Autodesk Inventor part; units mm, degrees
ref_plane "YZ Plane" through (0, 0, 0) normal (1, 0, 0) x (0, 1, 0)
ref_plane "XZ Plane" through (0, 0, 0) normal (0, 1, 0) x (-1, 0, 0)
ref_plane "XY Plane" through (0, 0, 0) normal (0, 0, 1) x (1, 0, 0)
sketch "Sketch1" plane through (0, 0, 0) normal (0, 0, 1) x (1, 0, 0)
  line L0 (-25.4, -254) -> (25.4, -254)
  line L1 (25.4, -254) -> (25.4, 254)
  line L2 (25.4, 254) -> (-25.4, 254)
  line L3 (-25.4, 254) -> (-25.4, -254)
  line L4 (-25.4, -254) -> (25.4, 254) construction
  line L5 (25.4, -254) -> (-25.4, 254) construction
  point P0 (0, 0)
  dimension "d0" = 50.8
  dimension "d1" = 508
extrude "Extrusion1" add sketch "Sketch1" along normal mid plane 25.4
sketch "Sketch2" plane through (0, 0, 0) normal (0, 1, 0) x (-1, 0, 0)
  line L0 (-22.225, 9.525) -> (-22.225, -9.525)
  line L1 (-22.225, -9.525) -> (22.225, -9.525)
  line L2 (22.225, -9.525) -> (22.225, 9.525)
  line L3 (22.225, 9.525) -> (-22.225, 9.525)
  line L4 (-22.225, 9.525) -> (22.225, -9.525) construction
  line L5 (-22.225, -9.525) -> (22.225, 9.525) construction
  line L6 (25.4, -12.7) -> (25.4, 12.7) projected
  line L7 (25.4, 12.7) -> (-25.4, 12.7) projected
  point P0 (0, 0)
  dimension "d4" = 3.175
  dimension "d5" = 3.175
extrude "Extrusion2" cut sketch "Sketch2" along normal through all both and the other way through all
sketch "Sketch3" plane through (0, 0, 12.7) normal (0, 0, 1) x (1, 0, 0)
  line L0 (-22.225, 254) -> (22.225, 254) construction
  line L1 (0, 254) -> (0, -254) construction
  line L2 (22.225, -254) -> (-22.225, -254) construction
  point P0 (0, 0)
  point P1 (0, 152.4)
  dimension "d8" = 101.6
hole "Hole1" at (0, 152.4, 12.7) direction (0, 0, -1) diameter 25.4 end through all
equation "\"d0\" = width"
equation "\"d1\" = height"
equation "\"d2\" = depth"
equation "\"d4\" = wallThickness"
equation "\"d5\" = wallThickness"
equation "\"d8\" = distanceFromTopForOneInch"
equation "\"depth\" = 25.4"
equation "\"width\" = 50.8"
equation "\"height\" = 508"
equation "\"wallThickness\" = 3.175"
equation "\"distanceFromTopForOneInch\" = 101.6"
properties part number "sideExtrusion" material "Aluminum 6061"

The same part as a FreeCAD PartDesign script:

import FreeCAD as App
import Part
import Sketcher

V = App.Vector
Q = App.Units.Quantity


def add_polygon(sketch, points):
    """Adds a closed chain of lines whose ends are joined by coincident constraints."""
    first, n = sketch.GeometryCount, len(points)
    for a, b in zip(points, points[1:] + points[:1]):
        sketch.addGeometry(Part.LineSegment(App.Vector(*a, 0), App.Vector(*b, 0)), False)
    for i in range(n):
        sketch.addConstraint(Sketcher.Constraint("Coincident", first + i, 2, first + (i + 1) % n, 1))

doc = App.newDocument("Part")
body = doc.addObject("PartDesign::Body", "Body")

sketch1 = body.newObject("Sketcher::SketchObject", "Sketch")
sketch1.AttachmentSupport = (doc.getObject("XY_Plane"), [""])
sketch1.MapMode = "FlatFace"
add_polygon(sketch1, [(-25.4, 254), (-25.4, -254), (25.4, -254), (25.4, 254)])
sketch1.addConstraint([
    Sketcher.Constraint("Vertical", 0),
    Sketcher.Constraint("Horizontal", 1),
    Sketcher.Constraint("Vertical", 2),
    Sketcher.Constraint("Horizontal", 3),
    Sketcher.Constraint("Symmetric", 0, 2, 2, 2, -1, 1),
    Sketcher.Constraint("DistanceX", 1, 1, 1, 2, Q("2 in")),
    Sketcher.Constraint("DistanceY", 0, 2, 0, 1, Q("20 in")),
])
pad1 = body.newObject("PartDesign::Pad", "Pad")
pad1.Profile = sketch1
pad1.Length = Q("1 in")
pad1.Midplane = True

sketch2 = body.newObject("Sketcher::SketchObject", "Sketch001")
sketch2.AttachmentSupport = (doc.getObject("XZ_Plane"), [""])
sketch2.MapMode = "FlatFace"
add_polygon(sketch2, [(-22.225, 9.525), (22.225, 9.525), (22.225, -9.525), (-22.225, -9.525)])
sketch2.addConstraint([
    Sketcher.Constraint("Horizontal", 0),
    Sketcher.Constraint("Vertical", 1),
    Sketcher.Constraint("Horizontal", 2),
    Sketcher.Constraint("Vertical", 3),
    Sketcher.Constraint("Symmetric", 0, 2, 2, 2, -1, 1),
    Sketcher.Constraint("DistanceX", 0, 1, 0, 2, Q("1.75 in")),
    Sketcher.Constraint("DistanceY", 1, 2, 1, 1, Q("0.75 in")),
])
pocket1 = body.newObject("PartDesign::Pocket", "Pocket")
pocket1.Profile = sketch2
pocket1.Type = "ThroughAll"
pocket1.Midplane = True

sketch3 = body.newObject("Sketcher::SketchObject", "Sketch002")
sketch3.AttachmentSupport = (doc.getObject("XY_Plane"), [""])
sketch3.MapMode = "FlatFace"
sketch3.AttachmentOffset = App.Placement(V(0, 0, 0.5 * 25.4), App.Rotation())
sketch3.addGeometry(Part.Circle(V(0, 152.4, 0), V(0, 0, 1), 12.7), False)
sketch3.addConstraint([
    Sketcher.Constraint("PointOnObject", 0, 3, -2),
    Sketcher.Constraint("Diameter", 0, Q("1 in")),
    Sketcher.Constraint("DistanceY", -1, 1, 0, 3, Q("6 in")),
])
doc.recompute()
hole = body.newObject("PartDesign::Hole", "Hole")
hole.Profile = sketch3
hole.ThreadType = "None"
hole.Diameter = Q("1 in")
hole.DepthType = "ThroughAll"

doc.recompute()
